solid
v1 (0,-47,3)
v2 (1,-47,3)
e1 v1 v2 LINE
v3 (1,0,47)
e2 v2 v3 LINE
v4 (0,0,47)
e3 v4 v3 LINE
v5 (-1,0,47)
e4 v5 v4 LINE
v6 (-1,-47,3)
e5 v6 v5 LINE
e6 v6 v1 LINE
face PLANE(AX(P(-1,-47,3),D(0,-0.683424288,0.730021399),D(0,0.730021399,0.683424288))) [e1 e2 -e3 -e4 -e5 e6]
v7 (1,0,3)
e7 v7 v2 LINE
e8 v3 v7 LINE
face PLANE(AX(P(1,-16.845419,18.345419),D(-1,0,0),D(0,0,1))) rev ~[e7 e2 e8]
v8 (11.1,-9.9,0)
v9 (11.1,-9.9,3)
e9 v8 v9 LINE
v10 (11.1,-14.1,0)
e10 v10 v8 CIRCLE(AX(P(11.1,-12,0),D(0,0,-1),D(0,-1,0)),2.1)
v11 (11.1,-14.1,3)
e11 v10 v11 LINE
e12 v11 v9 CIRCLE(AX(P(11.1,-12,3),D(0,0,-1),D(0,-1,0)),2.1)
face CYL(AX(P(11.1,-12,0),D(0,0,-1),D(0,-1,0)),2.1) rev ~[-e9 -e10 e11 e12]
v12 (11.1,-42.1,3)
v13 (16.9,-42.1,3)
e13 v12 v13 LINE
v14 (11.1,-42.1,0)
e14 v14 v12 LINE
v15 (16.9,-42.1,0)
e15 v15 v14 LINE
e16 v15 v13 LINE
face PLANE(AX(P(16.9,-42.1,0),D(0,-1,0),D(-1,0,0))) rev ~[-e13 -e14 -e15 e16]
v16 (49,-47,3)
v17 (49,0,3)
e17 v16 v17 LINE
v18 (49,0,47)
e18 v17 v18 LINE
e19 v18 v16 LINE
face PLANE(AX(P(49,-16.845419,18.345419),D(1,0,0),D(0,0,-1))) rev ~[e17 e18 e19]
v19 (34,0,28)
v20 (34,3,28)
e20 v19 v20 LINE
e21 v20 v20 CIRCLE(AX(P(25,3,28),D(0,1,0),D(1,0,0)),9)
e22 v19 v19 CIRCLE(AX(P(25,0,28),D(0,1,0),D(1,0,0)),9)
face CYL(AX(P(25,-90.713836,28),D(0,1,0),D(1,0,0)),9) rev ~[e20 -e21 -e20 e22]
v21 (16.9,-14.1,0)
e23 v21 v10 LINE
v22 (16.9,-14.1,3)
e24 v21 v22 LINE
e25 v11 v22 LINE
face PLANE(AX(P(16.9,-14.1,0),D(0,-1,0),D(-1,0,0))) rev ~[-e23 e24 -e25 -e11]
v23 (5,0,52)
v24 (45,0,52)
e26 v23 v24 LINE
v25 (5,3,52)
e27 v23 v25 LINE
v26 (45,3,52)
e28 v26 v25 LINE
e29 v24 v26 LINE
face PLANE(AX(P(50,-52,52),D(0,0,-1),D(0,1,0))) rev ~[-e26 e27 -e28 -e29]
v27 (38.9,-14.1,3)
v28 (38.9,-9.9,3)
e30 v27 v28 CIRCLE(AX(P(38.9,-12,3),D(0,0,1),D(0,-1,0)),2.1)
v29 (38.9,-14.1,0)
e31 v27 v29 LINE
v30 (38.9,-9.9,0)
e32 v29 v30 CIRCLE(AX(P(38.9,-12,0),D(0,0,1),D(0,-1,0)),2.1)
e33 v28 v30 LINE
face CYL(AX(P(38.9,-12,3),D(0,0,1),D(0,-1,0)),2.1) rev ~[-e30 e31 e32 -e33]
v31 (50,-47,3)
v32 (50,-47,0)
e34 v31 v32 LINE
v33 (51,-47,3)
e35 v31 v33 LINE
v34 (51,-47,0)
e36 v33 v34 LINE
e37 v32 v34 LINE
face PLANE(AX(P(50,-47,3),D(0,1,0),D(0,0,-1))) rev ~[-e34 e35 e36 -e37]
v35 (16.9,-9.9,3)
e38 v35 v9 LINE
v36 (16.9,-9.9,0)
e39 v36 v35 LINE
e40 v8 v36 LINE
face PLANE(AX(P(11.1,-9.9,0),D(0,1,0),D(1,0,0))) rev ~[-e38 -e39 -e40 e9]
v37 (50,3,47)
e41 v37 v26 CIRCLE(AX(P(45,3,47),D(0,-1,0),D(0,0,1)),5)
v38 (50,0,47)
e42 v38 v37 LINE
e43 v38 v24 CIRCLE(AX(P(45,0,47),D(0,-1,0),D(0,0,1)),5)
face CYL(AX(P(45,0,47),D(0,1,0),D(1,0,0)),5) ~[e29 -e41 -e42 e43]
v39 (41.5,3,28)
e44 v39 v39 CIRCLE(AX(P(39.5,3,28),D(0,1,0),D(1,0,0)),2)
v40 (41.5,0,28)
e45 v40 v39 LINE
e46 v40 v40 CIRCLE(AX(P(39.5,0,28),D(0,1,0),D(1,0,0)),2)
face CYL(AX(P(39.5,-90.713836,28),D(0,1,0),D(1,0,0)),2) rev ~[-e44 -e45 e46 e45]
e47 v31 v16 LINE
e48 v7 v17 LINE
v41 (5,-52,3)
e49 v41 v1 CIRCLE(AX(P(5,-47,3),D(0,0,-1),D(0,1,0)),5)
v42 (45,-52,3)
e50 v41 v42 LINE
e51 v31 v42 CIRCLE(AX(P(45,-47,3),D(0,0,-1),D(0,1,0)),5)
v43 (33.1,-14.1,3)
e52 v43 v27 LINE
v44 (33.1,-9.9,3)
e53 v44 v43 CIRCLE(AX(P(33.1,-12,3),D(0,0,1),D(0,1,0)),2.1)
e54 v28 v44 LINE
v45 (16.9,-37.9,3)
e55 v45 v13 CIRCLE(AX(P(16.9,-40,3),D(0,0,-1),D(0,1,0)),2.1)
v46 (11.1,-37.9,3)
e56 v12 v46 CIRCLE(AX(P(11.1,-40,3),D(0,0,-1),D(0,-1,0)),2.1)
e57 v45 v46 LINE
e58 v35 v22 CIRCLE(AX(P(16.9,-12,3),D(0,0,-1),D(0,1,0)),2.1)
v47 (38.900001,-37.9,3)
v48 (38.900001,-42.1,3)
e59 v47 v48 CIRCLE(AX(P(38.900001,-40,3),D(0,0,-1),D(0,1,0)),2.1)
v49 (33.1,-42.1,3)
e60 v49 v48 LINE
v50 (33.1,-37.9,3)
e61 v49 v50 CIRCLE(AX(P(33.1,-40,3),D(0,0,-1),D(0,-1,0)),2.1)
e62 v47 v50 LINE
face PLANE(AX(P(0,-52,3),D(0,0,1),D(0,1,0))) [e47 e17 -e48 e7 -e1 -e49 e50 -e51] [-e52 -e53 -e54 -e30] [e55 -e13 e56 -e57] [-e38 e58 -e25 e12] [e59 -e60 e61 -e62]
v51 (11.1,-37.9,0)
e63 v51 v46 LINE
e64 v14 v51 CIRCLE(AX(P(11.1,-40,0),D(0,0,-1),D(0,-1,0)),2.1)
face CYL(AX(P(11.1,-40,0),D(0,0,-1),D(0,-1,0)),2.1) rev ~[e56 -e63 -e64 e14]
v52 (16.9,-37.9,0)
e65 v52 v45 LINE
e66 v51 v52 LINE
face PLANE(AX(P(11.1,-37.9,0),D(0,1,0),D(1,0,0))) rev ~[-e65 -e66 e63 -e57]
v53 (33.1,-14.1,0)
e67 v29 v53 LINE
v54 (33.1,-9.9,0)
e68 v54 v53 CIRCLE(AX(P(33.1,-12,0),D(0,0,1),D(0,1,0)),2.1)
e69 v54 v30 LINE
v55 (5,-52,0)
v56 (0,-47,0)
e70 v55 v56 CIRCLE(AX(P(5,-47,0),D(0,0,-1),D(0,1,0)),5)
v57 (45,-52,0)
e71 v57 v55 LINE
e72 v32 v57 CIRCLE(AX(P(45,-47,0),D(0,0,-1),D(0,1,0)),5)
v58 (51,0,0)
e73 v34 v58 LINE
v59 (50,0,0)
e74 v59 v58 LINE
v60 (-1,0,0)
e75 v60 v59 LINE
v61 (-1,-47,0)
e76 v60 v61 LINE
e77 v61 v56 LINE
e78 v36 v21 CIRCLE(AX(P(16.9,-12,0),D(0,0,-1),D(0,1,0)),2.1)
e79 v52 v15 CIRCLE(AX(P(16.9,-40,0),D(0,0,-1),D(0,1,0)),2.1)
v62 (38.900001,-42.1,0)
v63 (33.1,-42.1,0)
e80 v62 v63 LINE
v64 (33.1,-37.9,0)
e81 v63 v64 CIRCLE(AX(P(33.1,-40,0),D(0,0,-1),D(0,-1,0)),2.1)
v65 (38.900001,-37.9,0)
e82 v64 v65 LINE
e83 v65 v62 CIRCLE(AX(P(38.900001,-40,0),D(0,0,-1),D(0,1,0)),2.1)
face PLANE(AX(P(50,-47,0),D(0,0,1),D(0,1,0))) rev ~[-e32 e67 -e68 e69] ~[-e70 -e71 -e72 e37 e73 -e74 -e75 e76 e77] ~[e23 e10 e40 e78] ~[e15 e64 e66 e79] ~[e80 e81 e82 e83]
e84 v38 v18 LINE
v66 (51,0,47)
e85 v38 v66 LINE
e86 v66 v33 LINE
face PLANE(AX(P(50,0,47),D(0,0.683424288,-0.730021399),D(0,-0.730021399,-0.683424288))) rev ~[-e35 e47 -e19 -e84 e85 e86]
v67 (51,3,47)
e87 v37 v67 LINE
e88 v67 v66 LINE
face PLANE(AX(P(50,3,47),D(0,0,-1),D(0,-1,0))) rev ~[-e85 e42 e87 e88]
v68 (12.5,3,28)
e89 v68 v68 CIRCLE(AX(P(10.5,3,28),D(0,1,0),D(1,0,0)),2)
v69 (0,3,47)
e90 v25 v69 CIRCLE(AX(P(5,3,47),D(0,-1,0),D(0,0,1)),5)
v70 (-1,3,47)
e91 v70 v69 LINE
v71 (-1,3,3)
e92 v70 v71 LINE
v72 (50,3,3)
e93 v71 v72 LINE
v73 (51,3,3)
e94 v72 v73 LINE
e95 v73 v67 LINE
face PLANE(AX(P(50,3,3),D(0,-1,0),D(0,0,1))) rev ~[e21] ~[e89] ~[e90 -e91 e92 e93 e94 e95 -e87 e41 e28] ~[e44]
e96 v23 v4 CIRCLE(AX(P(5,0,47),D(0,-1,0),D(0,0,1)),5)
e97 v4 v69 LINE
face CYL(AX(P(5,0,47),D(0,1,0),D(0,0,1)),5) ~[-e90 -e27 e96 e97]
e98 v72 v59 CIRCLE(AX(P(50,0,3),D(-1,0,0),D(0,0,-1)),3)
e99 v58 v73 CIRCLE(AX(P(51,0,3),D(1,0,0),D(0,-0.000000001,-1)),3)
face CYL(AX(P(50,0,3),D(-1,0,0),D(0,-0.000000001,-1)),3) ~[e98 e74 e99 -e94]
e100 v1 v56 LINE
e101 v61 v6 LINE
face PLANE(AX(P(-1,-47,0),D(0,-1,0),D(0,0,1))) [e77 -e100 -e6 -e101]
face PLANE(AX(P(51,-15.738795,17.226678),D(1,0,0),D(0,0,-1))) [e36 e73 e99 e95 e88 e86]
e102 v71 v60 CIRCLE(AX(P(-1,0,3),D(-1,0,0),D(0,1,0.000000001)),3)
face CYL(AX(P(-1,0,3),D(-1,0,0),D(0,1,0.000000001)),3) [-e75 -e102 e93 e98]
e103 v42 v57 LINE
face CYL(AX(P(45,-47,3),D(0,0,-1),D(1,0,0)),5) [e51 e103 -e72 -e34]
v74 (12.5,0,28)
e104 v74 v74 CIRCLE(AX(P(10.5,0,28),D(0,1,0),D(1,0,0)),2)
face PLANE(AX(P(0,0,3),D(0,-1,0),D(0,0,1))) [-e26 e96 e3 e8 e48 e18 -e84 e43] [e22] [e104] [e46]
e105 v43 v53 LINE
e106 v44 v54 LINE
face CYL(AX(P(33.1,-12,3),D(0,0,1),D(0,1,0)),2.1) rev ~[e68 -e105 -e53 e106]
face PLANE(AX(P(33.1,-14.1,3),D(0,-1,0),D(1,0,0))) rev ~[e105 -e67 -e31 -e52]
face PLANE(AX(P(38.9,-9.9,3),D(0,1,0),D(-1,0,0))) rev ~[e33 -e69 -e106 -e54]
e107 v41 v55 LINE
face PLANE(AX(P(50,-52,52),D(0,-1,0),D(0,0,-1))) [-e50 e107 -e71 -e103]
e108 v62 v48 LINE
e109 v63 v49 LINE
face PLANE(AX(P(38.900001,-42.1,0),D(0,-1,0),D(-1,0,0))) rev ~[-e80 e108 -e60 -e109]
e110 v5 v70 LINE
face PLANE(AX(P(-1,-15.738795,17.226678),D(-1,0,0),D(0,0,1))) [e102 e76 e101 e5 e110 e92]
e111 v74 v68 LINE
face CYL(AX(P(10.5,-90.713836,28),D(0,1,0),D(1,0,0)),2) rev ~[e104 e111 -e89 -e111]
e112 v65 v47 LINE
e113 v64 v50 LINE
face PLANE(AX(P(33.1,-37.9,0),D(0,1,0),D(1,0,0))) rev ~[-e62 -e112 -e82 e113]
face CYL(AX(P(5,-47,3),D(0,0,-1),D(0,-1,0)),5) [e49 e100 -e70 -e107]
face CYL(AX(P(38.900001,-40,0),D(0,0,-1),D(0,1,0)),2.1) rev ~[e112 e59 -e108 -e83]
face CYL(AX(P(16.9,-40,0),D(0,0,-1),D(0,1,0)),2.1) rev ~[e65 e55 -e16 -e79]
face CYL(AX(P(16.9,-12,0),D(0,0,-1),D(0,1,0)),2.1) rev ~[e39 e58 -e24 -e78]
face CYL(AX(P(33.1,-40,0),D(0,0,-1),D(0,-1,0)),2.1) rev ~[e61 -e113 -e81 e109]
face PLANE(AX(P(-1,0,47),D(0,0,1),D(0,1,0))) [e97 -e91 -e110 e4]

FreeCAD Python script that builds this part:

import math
import FreeCAD as App
import Part
import Sketcher

V = App.Vector


def edges_at(feature, points):
    """Names of the edges that pass closest to the given points."""
    edges = feature.Shape.Edges
    near = lambda p: min(range(len(edges)), key=lambda i: edges[i].distToShape(Part.Vertex(*p))[0])
    return sorted({f"Edge{near(p) + 1}" for p in points})

doc = App.newDocument("Part")
body = doc.addObject("PartDesign::Body", "Body")

# Sketch on YZ plane
sketch1 = body.newObject("Sketcher::SketchObject", "Sketch")
sketch1.AttachmentSupport = (doc.getObject("YZ_Plane"), [""])
sketch1.MapMode = "FlatFace"
sketch1.AttachmentOffset = App.Placement(V(0, 0, 50), App.Rotation())
sketch1.addGeometry([
    Part.LineSegment(V(3, 52, 0), V(-52, 52, 0)),
    Part.LineSegment(V(-52, 52, 0), V(-52, 0, 0)),
    Part.LineSegment(V(-52, 0, 0), V(3, 0, 0)),
    Part.LineSegment(V(3, 0, 0), V(3, 52, 0)),
], False)
sketch1.addConstraint([
    Sketcher.Constraint("Coincident", 0, 2, 1, 1),
    Sketcher.Constraint("Coincident", 1, 2, 2, 1),
    Sketcher.Constraint("Coincident", 2, 2, 3, 1),
    Sketcher.Constraint("Coincident", 3, 2, 0, 1),
    Sketcher.Constraint("Horizontal", 0),
    Sketcher.Constraint("Vertical", 1),
    Sketcher.Constraint("Horizontal", 2),
    Sketcher.Constraint("Vertical", 3),
    Sketcher.Constraint("PointOnObject", 1, 2, -1),
    Sketcher.Constraint("DistanceX", 0, 2, 0, 1, 55.0),
    Sketcher.Constraint("DistanceY", 1, 2, 1, 1, 52.0),
    Sketcher.Constraint("DistanceX", 0, 2, -1, 1, 52.0),
])
pad1 = body.newObject("PartDesign::Pad", "Pad")
pad1.Profile = sketch1
pad1.Length = 50
pad1.Reversed = True

# Sketch on YZ plane
sketch2 = body.newObject("Sketcher::SketchObject", "Sketch001")
sketch2.AttachmentSupport = (doc.getObject("YZ_Plane"), [""])
sketch2.MapMode = "FlatFace"
sketch2.addGeometry([
    Part.LineSegment(V(0, 3, 0), V(-52, 3, 0)),
    Part.LineSegment(V(-52, 3, 0), V(-52, 52, 0)),
    Part.LineSegment(V(-52, 52, 0), V(0, 52, 0)),
    Part.LineSegment(V(0, 52, 0), V(0, 3, 0)),
], False)
sketch2.addConstraint([
    Sketcher.Constraint("Coincident", 0, 2, 1, 1),
    Sketcher.Constraint("Coincident", 1, 2, 2, 1),
    Sketcher.Constraint("Coincident", 2, 2, 3, 1),
    Sketcher.Constraint("Coincident", 3, 2, 0, 1),
    Sketcher.Constraint("Horizontal", 0),
    Sketcher.Constraint("Vertical", 1),
    Sketcher.Constraint("Horizontal", 2),
    Sketcher.Constraint("Vertical", 3),
    Sketcher.Constraint("PointOnObject", 2, 2, -2),
    Sketcher.Constraint("DistanceX", 0, 2, 0, 1, 52.0),
    Sketcher.Constraint("DistanceY", 1, 1, 1, 2, 49.0),
    Sketcher.Constraint("DistanceY", -1, 1, 0, 2, 3.0),
])
pocket1 = body.newObject("PartDesign::Pocket", "Pocket")
pocket1.Profile = sketch2
pocket1.Type = "ThroughAll"
pocket1.Reversed = True

# Sketch on XY plane
sketch3 = body.newObject("Sketcher::SketchObject", "Sketch002")
sketch3.AttachmentSupport = (doc.getObject("XY_Plane"), [""])
sketch3.MapMode = "FlatFace"
sketch3.addGeometry([
    Part.LineSegment(V(33.1, -37.9, 0), V(38.900001, -37.9, 0)),
    Part.ArcOfCircle(Part.Circle(V(38.900001, -40, 0), V(0, 0, 1), 2.1), math.radians(-90), math.radians(90)),
    Part.LineSegment(V(38.900001, -42.1, 0), V(33.1, -42.1, 0)),
    Part.ArcOfCircle(Part.Circle(V(33.1, -40, 0), V(0, 0, 1), 2.1), math.radians(90), math.radians(270)),
], False)
sketch3.addConstraint([
    Sketcher.Constraint("Tangent", 0, 2, 1, 2),
    Sketcher.Constraint("Tangent", 1, 1, 2, 1),
    Sketcher.Constraint("Tangent", 2, 2, 3, 2),
    Sketcher.Constraint("Tangent", 3, 1, 0, 1),
    Sketcher.Constraint("Horizontal", 0),
    Sketcher.Constraint("Horizontal", 2),
    Sketcher.Constraint("Radius", 1, 2.1),
    Sketcher.Constraint("DistanceX", 0, 1, 0, 2, 5.800001),
    Sketcher.Constraint("DistanceY", 1, 3, -1, 1, 40.0),
    Sketcher.Constraint("DistanceX", -1, 1, 1, 3, 38.900001),
])
pocket2 = body.newObject("PartDesign::Pocket", "Pocket001")
pocket2.Profile = sketch3
pocket2.Type = "ThroughAll"
pocket2.Reversed = True

# Sketch on XY plane
sketch4 = body.newObject("Sketcher::SketchObject", "Sketch003")
sketch4.AttachmentSupport = (doc.getObject("XY_Plane"), [""])
sketch4.MapMode = "FlatFace"
sketch4.addGeometry([
    Part.LineSegment(V(16.9, -14.1, 0), V(11.1, -14.1, 0)),
    Part.ArcOfCircle(Part.Circle(V(11.1, -12, 0), V(0, 0, 1), 2.1), math.radians(90), math.radians(270)),
    Part.LineSegment(V(11.1, -9.9, 0), V(16.9, -9.9, 0)),
    Part.ArcOfCircle(Part.Circle(V(16.9, -12, 0), V(0, 0, 1), 2.1), math.radians(-90), math.radians(90)),
], False)
sketch4.addConstraint([
    Sketcher.Constraint("Tangent", 0, 2, 1, 2),
    Sketcher.Constraint("Tangent", 1, 1, 2, 1),
    Sketcher.Constraint("Tangent", 2, 2, 3, 2),
    Sketcher.Constraint("Tangent", 3, 1, 0, 1),
    Sketcher.Constraint("Horizontal", 0),
    Sketcher.Constraint("Horizontal", 2),
    Sketcher.Constraint("Radius", 1, 2.1),
    Sketcher.Constraint("DistanceX", 0, 2, 0, 1, 5.8),
    Sketcher.Constraint("DistanceY", 1, 3, -1, 1, 12.0),
    Sketcher.Constraint("DistanceX", -1, 1, 1, 3, 11.1),
])
pocket3 = body.newObject("PartDesign::Pocket", "Pocket002")
pocket3.Profile = sketch4
pocket3.Type = "ThroughAll"
pocket3.Reversed = True

# Sketch on XY plane
sketch5 = body.newObject("Sketcher::SketchObject", "Sketch004")
sketch5.AttachmentSupport = (doc.getObject("XY_Plane"), [""])
sketch5.MapMode = "FlatFace"
sketch5.addGeometry([
    Part.LineSegment(V(16.9, -42.1, 0), V(11.1, -42.1, 0)),
    Part.ArcOfCircle(Part.Circle(V(11.1, -40, 0), V(0, 0, 1), 2.1), math.radians(90), math.radians(270)),
    Part.LineSegment(V(11.1, -37.9, 0), V(16.9, -37.9, 0)),
    Part.ArcOfCircle(Part.Circle(V(16.9, -40, 0), V(0, 0, 1), 2.1), math.radians(-90), math.radians(90)),
], False)
sketch5.addConstraint([
    Sketcher.Constraint("Tangent", 0, 2, 1, 2),
    Sketcher.Constraint("Tangent", 1, 1, 2, 1),
    Sketcher.Constraint("Tangent", 2, 2, 3, 2),
    Sketcher.Constraint("Tangent", 3, 1, 0, 1),
    Sketcher.Constraint("Horizontal", 0),
    Sketcher.Constraint("Horizontal", 2),
    Sketcher.Constraint("Radius", 1, 2.1),
    Sketcher.Constraint("DistanceX", 0, 2, 0, 1, 5.8),
    Sketcher.Constraint("DistanceY", 1, 3, -1, 1, 40.0),
    Sketcher.Constraint("DistanceX", -1, 1, 1, 3, 11.1),
])
pocket4 = body.newObject("PartDesign::Pocket", "Pocket003")
pocket4.Profile = sketch5
pocket4.Type = "ThroughAll"
pocket4.Reversed = True

# Sketch on XY plane
sketch6 = body.newObject("Sketcher::SketchObject", "Sketch005")
sketch6.AttachmentSupport = (doc.getObject("XY_Plane"), [""])
sketch6.MapMode = "FlatFace"
sketch6.AttachmentOffset = App.Placement(V(0, 0, 3), App.Rotation())
sketch6.addGeometry([
    Part.LineSegment(V(38.9, -9.9, 0), V(33.1, -9.9, 0)),
    Part.ArcOfCircle(Part.Circle(V(33.1, -12, 0), V(0, 0, 1), 2.1), math.radians(90), math.radians(270)),
    Part.LineSegment(V(33.1, -14.1, 0), V(38.9, -14.1, 0)),
    Part.ArcOfCircle(Part.Circle(V(38.9, -12, 0), V(0, 0, 1), 2.1), math.radians(-90), math.radians(90)),
], False)
sketch6.addConstraint([
    Sketcher.Constraint("Tangent", 0, 2, 1, 1),
    Sketcher.Constraint("Tangent", 1, 2, 2, 1),
    Sketcher.Constraint("Tangent", 2, 2, 3, 1),
    Sketcher.Constraint("Tangent", 3, 2, 0, 1),
    Sketcher.Constraint("Horizontal", 0),
    Sketcher.Constraint("Horizontal", 2),
    Sketcher.Constraint("Radius", 1, 2.1),
    Sketcher.Constraint("DistanceX", 0, 2, 0, 1, 5.8),
    Sketcher.Constraint("DistanceY", 1, 3, -1, 1, 12.0),
    Sketcher.Constraint("DistanceX", -1, 1, 1, 3, 33.1),
])
pocket5 = body.newObject("PartDesign::Pocket", "Pocket004")
pocket5.Profile = sketch6
pocket5.Type = "ThroughAll"

# Sketch on XZ plane
sketch7 = body.newObject("Sketcher::SketchObject", "Sketch006")
sketch7.AttachmentSupport = (doc.getObject("XZ_Plane"), [""])
sketch7.MapMode = "FlatFace"
sketch7.addGeometry(Part.Circle(V(25, 28, 0), V(0, 0, 1), 9), False)
sketch7.addConstraint([
    Sketcher.Constraint("Diameter", 0, 18.0),
    Sketcher.Constraint("DistanceX", -1, 1, 0, 3, 25.0),
    Sketcher.Constraint("DistanceY", -1, 1, 0, 3, 28.0),
])
doc.recompute()
hole = body.newObject("PartDesign::Hole", "Hole")
hole.Profile = sketch7
hole.ThreadType = "None"
hole.Diameter = 18
hole.DepthType = "ThroughAll"

# Sketch on XZ plane
sketch8 = body.newObject("Sketcher::SketchObject", "Sketch007")
sketch8.AttachmentSupport = (doc.getObject("XZ_Plane"), [""])
sketch8.MapMode = "FlatFace"
sketch8.addGeometry([
    Part.Circle(V(10.5, 28, 0), V(0, 0, 1), 2),
    Part.Circle(V(39.5, 28, 0), V(0, 0, 1), 2),
], False)
sketch8.addConstraint([
    Sketcher.Constraint("Equal", 0, 1),
    Sketcher.Constraint("Horizontal", 0, 3, 1, 3),
    Sketcher.Constraint("Diameter", 0, 4.0),
    Sketcher.Constraint("DistanceY", -1, 1, 0, 3, 28.0),
    Sketcher.Constraint("DistanceX", 0, 3, 1, 3, 29.0),
    Sketcher.Constraint("DistanceX", -1, 1, 0, 3, 10.5),
])
doc.recompute()
hole2 = body.newObject("PartDesign::Hole", "Hole001")
hole2.Profile = sketch8
hole2.ThreadType = "None"
hole2.Diameter = 4
hole2.DepthType = "ThroughAll"
doc.recompute()

fillet = body.newObject("PartDesign::Fillet", "Fillet")
fillet.Base = (hole2, edges_at(hole2, [(25, 3, 0)]))
fillet.Radius = 3
doc.recompute()

fillet2 = body.newObject("PartDesign::Fillet", "Fillet001")
fillet2.Base = (fillet, edges_at(fillet, [
    (50, -52, 1.5),
    (0, -52, 1.5),
    (0, 1.5, 52),
    (50, 1.5, 52),
]))
fillet2.Radius = 5

# Sketch on YZ plane
sketch9 = body.newObject("Sketcher::SketchObject", "Sketch008")
sketch9.AttachmentSupport = (doc.getObject("YZ_Plane"), [""])
sketch9.MapMode = "FlatFace"
sketch9.addGeometry([
    Part.LineSegment(V(-47, 3, 0), V(0, 47, 0)),
    Part.LineSegment(V(0, 47, 0), V(0, 3, 0)),
    Part.LineSegment(V(0, 3, 0), V(-47, 3, 0)),
], False)
sketch9.addConstraint([
    Sketcher.Constraint("Coincident", 0, 2, 1, 1),
    Sketcher.Constraint("Coincident", 1, 2, 2, 1),
    Sketcher.Constraint("Coincident", 2, 2, 0, 1),
    Sketcher.Constraint("Vertical", 1),
    Sketcher.Constraint("Horizontal", 2),
    Sketcher.Constraint("PointOnObject", 0, 2, -2),
    Sketcher.Constraint("DistanceX", 2, 2, 2, 1, 47.0),
    Sketcher.Constraint("DistanceY", 1, 2, 1, 1, 44.0),
    Sketcher.Constraint("DistanceY", -1, 1, 0, 2, 47.0),
])
pad2 = body.newObject("PartDesign::Pad", "Pad001")
pad2.Profile = sketch9
pad2.Length = 1

# Sketch on YZ plane
sketch10 = body.newObject("Sketcher::SketchObject", "Sketch009")
sketch10.AttachmentSupport = (doc.getObject("YZ_Plane"), [""])
sketch10.MapMode = "FlatFace"
sketch10.AttachmentOffset = App.Placement(V(0, 0, 50), App.Rotation())
sketch10.addGeometry([
    Part.LineSegment(V(-47, 3, 0), V(0, 3, 0)),
    Part.LineSegment(V(0, 3, 0), V(0, 47, 0)),
    Part.LineSegment(V(0, 47, 0), V(-47, 3, 0)),
], False)
sketch10.addConstraint([
    Sketcher.Constraint("Coincident", 0, 2, 1, 1),
    Sketcher.Constraint("Coincident", 1, 2, 2, 1),
    Sketcher.Constraint("Coincident", 2, 2, 0, 1),
    Sketcher.Constraint("Horizontal", 0),
    Sketcher.Constraint("Vertical", 1),
    Sketcher.Constraint("PointOnObject", 0, 2, -2),
    Sketcher.Constraint("DistanceX", 0, 1, 0, 2, 47.0),
    Sketcher.Constraint("DistanceY", 1, 1, 1, 2, 44.0),
    Sketcher.Constraint("DistanceY", -1, 1, 0, 2, 3.0),
])
pad3 = body.newObject("PartDesign::Pad", "Pad002")
pad3.Profile = sketch10
pad3.Length = 1
pad3.Reversed = True

# Sketch on YZ plane
sketch11 = body.newObject("Sketcher::SketchObject", "Sketch010")
sketch11.AttachmentSupport = (doc.getObject("YZ_Plane"), [""])
sketch11.MapMode = "FlatFace"
sketch11.AttachmentOffset = App.Placement(V(0, 0, -1), App.Rotation())
sketch11.addGeometry([
    Part.LineSegment(V(0, 0, 0), V(-47, 0, 0)),  # 0
    Part.LineSegment(V(-47, 0, 0), V(-47, 3, 0)),  # 1
    Part.LineSegment(V(-47, 3, 0), V(0, 47, 0)),  # 2
    Part.LineSegment(V(0, 47, 0), V(3, 47, 0)),  # 3
    Part.LineSegment(V(3, 47, 0), V(3, 3, 0)),  # 4
    Part.ArcOfCircle(Part.Circle(V(0, 3, 0), V(0, 0, 1), 3), math.radians(-90), math.radians(0)),  # 5
], False)
sketch11.addConstraint([
    Sketcher.Constraint("Coincident", 0, 2, 1, 1),
    Sketcher.Constraint("Coincident", 1, 2, 2, 1),
    Sketcher.Constraint("Coincident", 2, 2, 3, 1),
    Sketcher.Constraint("Coincident", 3, 2, 4, 1),
    Sketcher.Constraint("Tangent", 4, 2, 5, 2),
    Sketcher.Constraint("Tangent", 5, 1, 0, 1),
    Sketcher.Constraint("Horizontal", 0),
    Sketcher.Constraint("Vertical", 1),
    Sketcher.Constraint("Horizontal", 3),
    Sketcher.Constraint("Vertical", 4),
    Sketcher.Constraint("Coincident", 5, 1, -1, 1),
    Sketcher.Constraint("PointOnObject", 2, 2, -2),
    Sketcher.Constraint("Horizontal", 5, 3, 1, 2),
    Sketcher.Constraint("Radius", 5, 3.0),
    Sketcher.Constraint("DistanceX", 0, 2, 0, 1, 47.0),
    Sketcher.Constraint("DistanceY", 4, 2, 4, 1, 44.0),
])
pad4 = body.newObject("PartDesign::Pad", "Pad003")
pad4.Profile = sketch11
pad4.Length = 1

# Sketch on YZ plane
sketch12 = body.newObject("Sketcher::SketchObject", "Sketch011")
sketch12.AttachmentSupport = (doc.getObject("YZ_Plane"), [""])
sketch12.MapMode = "FlatFace"
sketch12.AttachmentOffset = App.Placement(V(0, 0, 50), App.Rotation())
sketch12.addGeometry([
    Part.LineSegment(V(3, 3, 0), V(3, 47, 0)),  # 0
    Part.LineSegment(V(3, 47, 0), V(0, 47, 0)),  # 1
    Part.LineSegment(V(0, 47, 0), V(-47, 3, 0)),  # 2
    Part.LineSegment(V(-47, 3, 0), V(-47, 0, 0)),  # 3
    Part.LineSegment(V(-47, 0, 0), V(0, 0, 0)),  # 4
    Part.ArcOfCircle(Part.Circle(V(0, 3, 0), V(0, 0, 1), 3), math.radians(-90), math.radians(0)),  # 5
], False)
sketch12.addConstraint([
    Sketcher.Constraint("Coincident", 0, 2, 1, 1),
    Sketcher.Constraint("Coincident", 1, 2, 2, 1),
    Sketcher.Constraint("Coincident", 2, 2, 3, 1),
    Sketcher.Constraint("Coincident", 3, 2, 4, 1),
    Sketcher.Constraint("Tangent", 4, 2, 5, 1),
    Sketcher.Constraint("Tangent", 5, 2, 0, 1),
    Sketcher.Constraint("Vertical", 0),
    Sketcher.Constraint("Horizontal", 1),
    Sketcher.Constraint("Vertical", 3),
    Sketcher.Constraint("Horizontal", 4),
    Sketcher.Constraint("Coincident", 4, 2, -1, 1),
    Sketcher.Constraint("PointOnObject", 1, 2, -2),
    Sketcher.Constraint("Horizontal", 5, 3, 2, 2),
    Sketcher.Constraint("Radius", 5, 3.0),
    Sketcher.Constraint("DistanceX", 4, 1, 4, 2, 47.0),
    Sketcher.Constraint("DistanceY", 0, 1, 0, 2, 44.0),
])
pad5 = body.newObject("PartDesign::Pad", "Pad004")
pad5.Profile = sketch12
pad5.Length = 1

doc.recompute()
